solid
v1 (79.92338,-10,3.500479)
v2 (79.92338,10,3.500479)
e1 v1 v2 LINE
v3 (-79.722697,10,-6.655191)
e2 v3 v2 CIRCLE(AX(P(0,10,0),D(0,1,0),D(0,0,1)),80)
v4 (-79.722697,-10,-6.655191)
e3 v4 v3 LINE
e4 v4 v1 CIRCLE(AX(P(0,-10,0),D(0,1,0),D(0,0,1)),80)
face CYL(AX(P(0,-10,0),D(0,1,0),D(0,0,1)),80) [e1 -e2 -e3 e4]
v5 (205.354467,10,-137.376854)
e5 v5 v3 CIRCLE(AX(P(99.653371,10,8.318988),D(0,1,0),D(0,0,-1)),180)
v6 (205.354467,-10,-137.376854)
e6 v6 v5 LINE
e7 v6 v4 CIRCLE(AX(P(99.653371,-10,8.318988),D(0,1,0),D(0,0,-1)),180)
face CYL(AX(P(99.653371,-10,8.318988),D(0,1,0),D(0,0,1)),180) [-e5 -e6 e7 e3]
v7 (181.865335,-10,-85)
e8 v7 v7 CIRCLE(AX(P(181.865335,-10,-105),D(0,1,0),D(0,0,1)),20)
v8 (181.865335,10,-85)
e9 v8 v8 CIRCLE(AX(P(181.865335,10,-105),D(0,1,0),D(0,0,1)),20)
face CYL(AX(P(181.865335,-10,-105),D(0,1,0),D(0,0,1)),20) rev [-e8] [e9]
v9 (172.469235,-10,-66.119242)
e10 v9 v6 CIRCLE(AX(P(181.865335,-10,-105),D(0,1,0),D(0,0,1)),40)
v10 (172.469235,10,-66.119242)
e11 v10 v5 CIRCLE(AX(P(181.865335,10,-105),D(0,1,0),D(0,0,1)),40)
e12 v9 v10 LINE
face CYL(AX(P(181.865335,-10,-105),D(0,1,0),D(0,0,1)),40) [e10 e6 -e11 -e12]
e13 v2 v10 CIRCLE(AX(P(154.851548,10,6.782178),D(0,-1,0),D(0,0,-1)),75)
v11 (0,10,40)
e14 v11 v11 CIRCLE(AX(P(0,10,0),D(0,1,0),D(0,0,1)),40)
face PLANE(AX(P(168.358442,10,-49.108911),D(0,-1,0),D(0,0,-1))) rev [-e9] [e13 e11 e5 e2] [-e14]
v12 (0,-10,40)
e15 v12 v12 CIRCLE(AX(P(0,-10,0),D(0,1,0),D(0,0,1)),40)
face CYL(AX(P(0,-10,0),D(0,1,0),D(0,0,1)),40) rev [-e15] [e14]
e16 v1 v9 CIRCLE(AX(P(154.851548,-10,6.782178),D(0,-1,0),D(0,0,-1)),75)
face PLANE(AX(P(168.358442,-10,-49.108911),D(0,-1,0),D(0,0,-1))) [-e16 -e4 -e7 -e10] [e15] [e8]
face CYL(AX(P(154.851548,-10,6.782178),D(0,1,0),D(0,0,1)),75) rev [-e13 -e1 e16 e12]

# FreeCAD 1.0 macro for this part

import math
import FreeCAD as App
import Part
import Sketcher
Q = App.Units.Quantity

doc = App.newDocument("Part")
body = doc.addObject("PartDesign::Body", "Body")

# Sketch on XZ plane
sketch1 = doc.addObject("Sketcher::SketchObject", "Sketch")
body.addObject(sketch1)
sketch1.AttachmentSupport = (doc.XZ_Plane, [""])
sketch1.MapMode = "FlatFace"
sketch1.addGeometry(Part.ArcOfCircle(Part.Circle(App.Vector(182, -105, 0), App.Vector(0, 0, 1), 40), math.radians(-54), math.radians(104)), False)
sketch1.addGeometry(Part.ArcOfCircle(Part.Circle(App.Vector(100, 8, 0), App.Vector(0, 0, 1), 180), math.radians(-175), math.radians(-54)), False)
sketch1.addGeometry(Part.ArcOfCircle(Part.Circle(App.Vector(0, 0, 0), App.Vector(0, 0, 1), 80), math.radians(3), math.radians(185)), False)
sketch1.addGeometry(Part.ArcOfCircle(Part.Circle(App.Vector(155, 7, 0), App.Vector(0, 0, 1), 75), math.radians(-177), math.radians(-76)), False)
sketch1.addGeometry(Part.Circle(App.Vector(0, 0, 0), App.Vector(0, 0, 1), 40), False)
sketch1.addGeometry(Part.Circle(App.Vector(182, -105, 0), App.Vector(0, 0, 1), 20), False)
sketch1.addConstraint(Sketcher.Constraint("Tangent", 0, 1, 1, 2))
sketch1.addConstraint(Sketcher.Constraint("Tangent", 1, 1, 2, 2))
sketch1.addConstraint(Sketcher.Constraint("Tangent", 2, 1, 3, 1))
sketch1.addConstraint(Sketcher.Constraint("Tangent", 3, 2, 0, 2))
sketch1.addConstraint(Sketcher.Constraint("Coincident", 2, 3, -1, 1))
sketch1.addConstraint(Sketcher.Constraint("Coincident", 4, 3, -1, 1))
sketch1.addConstraint(Sketcher.Constraint("Coincident", 5, 3, 0, 3))
sketch1.addConstraint(Sketcher.Constraint("Equal", 0, 4))
sketch1.addConstraint(Sketcher.Constraint("Diameter", 4, Q("80 mm")))
sketch1.addConstraint(Sketcher.Constraint("Diameter", 5, Q("40 mm")))
sketch1.addConstraint(Sketcher.Constraint("Radius", 1, Q("180 mm")))
sketch1.addConstraint(Sketcher.Constraint("Radius", 2, Q("80 mm")))
sketch1.addConstraint(Sketcher.Constraint("Radius", 3, Q("75 mm")))
sketch1.addConstraint(Sketcher.Constraint("DistanceY", 0, 3, -1, 1, Q("105 mm")))
sketch1.addConstraint(Sketcher.Constraint("DistanceX", 3, 2, 0, 3, Q("9.3961 mm")))
pad1 = doc.addObject("PartDesign::Pad", "Pad")
body.addObject(pad1)
pad1.Profile = sketch1
pad1.Type = "TwoLengths"
pad1.Length = 10
pad1.Length2 = 10
pad1.Reversed = True

doc.recompute()
